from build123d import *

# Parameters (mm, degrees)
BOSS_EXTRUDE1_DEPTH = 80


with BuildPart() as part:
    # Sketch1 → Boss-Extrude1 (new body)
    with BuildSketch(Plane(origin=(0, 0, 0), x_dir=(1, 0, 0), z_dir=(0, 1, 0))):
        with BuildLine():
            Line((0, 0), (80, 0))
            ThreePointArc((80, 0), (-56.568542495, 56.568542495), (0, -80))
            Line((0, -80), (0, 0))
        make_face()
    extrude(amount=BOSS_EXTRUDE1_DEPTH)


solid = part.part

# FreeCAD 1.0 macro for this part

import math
import FreeCAD as App
import Part
import Sketcher
from FreeCAD import Vector

doc = App.newDocument("Part")
body = doc.addObject("PartDesign::Body", "Body")

sketch1 = body.newObject("Sketcher::SketchObject", "Sketch")
sketch1.AttachmentSupport = (doc.getObject("XZ_Plane"), [""])
sketch1.MapMode = "FlatFace"
sketch1.addGeometry([
    Part.LineSegment(Vector(0, 0, 0), Vector(80, 0, 0)),
    Part.ArcOfCircle(Part.Circle(Vector(0, 0, 0), Vector(0, 0, 1), 80), math.radians(90), math.radians(360)),
    Part.LineSegment(Vector(0, 80, 0), Vector(0, 0, 0)),
], False)
sketch1.addConstraint([
    Sketcher.Constraint("Coincident", 0, 2, 1, 2),
    Sketcher.Constraint("Coincident", 1, 1, 2, 1),
    Sketcher.Constraint("Coincident", 2, 2, 0, 1),
    Sketcher.Constraint("Horizontal", 0),
    Sketcher.Constraint("Vertical", 2),
    Sketcher.Constraint("Coincident", 1, 3, -1, 1),
    Sketcher.Constraint("Coincident", 2, 2, -1, 1),
    Sketcher.Constraint("Radius", 1, 80.0),
])
pad1 = body.newObject("PartDesign::Pad", "Pad")
pad1.Profile = sketch1
pad1.Length = 80
pad1.Reversed = True

doc.recompute()
